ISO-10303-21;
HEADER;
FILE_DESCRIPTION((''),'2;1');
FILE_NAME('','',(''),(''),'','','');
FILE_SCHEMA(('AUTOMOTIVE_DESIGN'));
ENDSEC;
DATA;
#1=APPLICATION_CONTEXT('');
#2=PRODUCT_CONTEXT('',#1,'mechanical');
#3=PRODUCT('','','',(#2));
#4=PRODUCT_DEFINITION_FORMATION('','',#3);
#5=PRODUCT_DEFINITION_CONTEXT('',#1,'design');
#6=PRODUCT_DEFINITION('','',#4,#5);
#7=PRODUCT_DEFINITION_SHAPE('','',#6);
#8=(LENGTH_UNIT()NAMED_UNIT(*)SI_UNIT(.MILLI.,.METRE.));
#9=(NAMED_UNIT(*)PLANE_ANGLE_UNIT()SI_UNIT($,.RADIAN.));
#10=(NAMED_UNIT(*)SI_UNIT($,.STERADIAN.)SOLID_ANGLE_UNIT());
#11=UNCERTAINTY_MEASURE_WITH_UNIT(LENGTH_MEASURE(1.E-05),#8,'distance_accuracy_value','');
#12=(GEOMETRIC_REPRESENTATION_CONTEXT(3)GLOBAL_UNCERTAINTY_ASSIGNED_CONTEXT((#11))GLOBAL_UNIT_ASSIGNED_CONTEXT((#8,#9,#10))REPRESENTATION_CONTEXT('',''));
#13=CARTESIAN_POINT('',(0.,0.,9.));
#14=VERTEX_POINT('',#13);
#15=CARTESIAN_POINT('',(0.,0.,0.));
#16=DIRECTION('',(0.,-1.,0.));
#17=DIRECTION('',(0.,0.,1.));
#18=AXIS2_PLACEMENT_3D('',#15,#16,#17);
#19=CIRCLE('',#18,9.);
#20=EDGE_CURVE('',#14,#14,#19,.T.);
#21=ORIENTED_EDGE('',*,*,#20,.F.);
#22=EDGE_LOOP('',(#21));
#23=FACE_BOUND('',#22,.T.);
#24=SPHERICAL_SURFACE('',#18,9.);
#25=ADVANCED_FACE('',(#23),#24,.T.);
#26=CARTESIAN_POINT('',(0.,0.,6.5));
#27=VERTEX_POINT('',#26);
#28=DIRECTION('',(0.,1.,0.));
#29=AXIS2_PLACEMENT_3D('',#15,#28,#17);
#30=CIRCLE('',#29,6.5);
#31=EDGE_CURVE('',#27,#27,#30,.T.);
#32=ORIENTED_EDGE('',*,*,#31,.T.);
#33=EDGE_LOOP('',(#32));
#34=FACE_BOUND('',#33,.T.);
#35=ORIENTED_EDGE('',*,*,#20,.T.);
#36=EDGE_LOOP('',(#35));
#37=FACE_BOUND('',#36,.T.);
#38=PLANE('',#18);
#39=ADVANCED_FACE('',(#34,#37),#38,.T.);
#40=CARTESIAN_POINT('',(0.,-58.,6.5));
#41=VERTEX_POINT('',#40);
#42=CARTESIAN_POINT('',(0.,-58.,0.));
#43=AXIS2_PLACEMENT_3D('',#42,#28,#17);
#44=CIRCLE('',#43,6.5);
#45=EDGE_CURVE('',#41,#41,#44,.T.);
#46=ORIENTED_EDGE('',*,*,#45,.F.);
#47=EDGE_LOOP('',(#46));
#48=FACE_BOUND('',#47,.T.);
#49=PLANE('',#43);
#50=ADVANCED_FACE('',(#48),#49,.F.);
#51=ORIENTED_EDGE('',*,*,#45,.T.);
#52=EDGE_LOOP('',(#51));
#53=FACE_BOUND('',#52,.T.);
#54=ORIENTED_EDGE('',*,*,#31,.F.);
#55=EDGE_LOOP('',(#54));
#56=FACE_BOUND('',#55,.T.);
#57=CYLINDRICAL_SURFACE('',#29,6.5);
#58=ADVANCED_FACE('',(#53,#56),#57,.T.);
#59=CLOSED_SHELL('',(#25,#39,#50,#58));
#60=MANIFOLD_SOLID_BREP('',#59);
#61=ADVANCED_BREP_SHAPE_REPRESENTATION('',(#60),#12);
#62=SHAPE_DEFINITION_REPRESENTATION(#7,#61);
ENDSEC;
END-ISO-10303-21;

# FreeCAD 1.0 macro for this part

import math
import FreeCAD as App
import Part
import Sketcher
Q = App.Units.Quantity


def add_polygon(sketch, points):
    """Adds a closed chain of lines whose ends are joined by coincident constraints."""
    first, n = sketch.GeometryCount, len(points)
    for a, b in zip(points, points[1:] + points[:1]):
        sketch.addGeometry(Part.LineSegment(App.Vector(*a, 0), App.Vector(*b, 0)), False)
    for i in range(n):
        sketch.addConstraint(Sketcher.Constraint("Coincident", first + i, 2, first + (i + 1) % n, 1))

doc = App.newDocument("Part")
body = doc.addObject("PartDesign::Body", "Body")

# Sketch on XZ plane
sketch1 = body.newObject("Sketcher::SketchObject", "Sketch")
sketch1.AttachmentSupport = (doc.getObject("XZ_Plane"), [""])
sketch1.MapMode = "FlatFace"
sketch1.addGeometry(Part.LineSegment(App.Vector(0, -9, 0), App.Vector(0, 9, 0)), False)
sketch1.addGeometry(Part.ArcOfCircle(Part.Circle(App.Vector(0, 0, 0), App.Vector(0, 0, 1), 9), math.radians(-90), math.radians(90)), False)
sketch1.addConstraint(Sketcher.Constraint("Coincident", 0, 1, 1, 1))
sketch1.addConstraint(Sketcher.Constraint("Coincident", 1, 2, 0, 2))
sketch1.addConstraint(Sketcher.Constraint("Vertical", 0))
sketch1.addConstraint(Sketcher.Constraint("Coincident", 1, 3, -1, 1))
sketch1.addConstraint(Sketcher.Constraint("PointOnObject", 0, 1, -2))
sketch1.addConstraint(Sketcher.Constraint("Radius", 1, Q("9 mm")))
revolution = body.newObject("PartDesign::Revolution", "Revolution")
revolution.Profile = sketch1
revolution.ReferenceAxis = (sketch1, ["V_Axis"])
revolution.Angle = 180

# Sketch on YZ plane
sketch2 = body.newObject("Sketcher::SketchObject", "Sketch001")
sketch2.AttachmentSupport = (doc.getObject("YZ_Plane"), [""])
sketch2.MapMode = "FlatFace"
add_polygon(sketch2, [(0, 0), (-58, 0), (-58, -6), (0, -6)])  # lines 0-3
sketch2.addConstraint(Sketcher.Constraint("Horizontal", 0))
sketch2.addConstraint(Sketcher.Constraint("Vertical", 1))
sketch2.addConstraint(Sketcher.Constraint("Horizontal", 2))
sketch2.addConstraint(Sketcher.Constraint("Vertical", 3))
sketch2.addConstraint(Sketcher.Constraint("Coincident", 3, 2, -1, 1))
sketch2.addConstraint(Sketcher.Constraint("DistanceX", 0, 2, 0, 1, Q("58 mm")))
sketch2.addConstraint(Sketcher.Constraint("DistanceY", 1, 2, 1, 1, Q("6.5 mm")))
revolution2 = body.newObject("PartDesign::Revolution", "Revolution001")
revolution2.Profile = sketch2
revolution2.ReferenceAxis = (sketch2, ["H_Axis"])
revolution2.Angle = 360

doc.recompute()
